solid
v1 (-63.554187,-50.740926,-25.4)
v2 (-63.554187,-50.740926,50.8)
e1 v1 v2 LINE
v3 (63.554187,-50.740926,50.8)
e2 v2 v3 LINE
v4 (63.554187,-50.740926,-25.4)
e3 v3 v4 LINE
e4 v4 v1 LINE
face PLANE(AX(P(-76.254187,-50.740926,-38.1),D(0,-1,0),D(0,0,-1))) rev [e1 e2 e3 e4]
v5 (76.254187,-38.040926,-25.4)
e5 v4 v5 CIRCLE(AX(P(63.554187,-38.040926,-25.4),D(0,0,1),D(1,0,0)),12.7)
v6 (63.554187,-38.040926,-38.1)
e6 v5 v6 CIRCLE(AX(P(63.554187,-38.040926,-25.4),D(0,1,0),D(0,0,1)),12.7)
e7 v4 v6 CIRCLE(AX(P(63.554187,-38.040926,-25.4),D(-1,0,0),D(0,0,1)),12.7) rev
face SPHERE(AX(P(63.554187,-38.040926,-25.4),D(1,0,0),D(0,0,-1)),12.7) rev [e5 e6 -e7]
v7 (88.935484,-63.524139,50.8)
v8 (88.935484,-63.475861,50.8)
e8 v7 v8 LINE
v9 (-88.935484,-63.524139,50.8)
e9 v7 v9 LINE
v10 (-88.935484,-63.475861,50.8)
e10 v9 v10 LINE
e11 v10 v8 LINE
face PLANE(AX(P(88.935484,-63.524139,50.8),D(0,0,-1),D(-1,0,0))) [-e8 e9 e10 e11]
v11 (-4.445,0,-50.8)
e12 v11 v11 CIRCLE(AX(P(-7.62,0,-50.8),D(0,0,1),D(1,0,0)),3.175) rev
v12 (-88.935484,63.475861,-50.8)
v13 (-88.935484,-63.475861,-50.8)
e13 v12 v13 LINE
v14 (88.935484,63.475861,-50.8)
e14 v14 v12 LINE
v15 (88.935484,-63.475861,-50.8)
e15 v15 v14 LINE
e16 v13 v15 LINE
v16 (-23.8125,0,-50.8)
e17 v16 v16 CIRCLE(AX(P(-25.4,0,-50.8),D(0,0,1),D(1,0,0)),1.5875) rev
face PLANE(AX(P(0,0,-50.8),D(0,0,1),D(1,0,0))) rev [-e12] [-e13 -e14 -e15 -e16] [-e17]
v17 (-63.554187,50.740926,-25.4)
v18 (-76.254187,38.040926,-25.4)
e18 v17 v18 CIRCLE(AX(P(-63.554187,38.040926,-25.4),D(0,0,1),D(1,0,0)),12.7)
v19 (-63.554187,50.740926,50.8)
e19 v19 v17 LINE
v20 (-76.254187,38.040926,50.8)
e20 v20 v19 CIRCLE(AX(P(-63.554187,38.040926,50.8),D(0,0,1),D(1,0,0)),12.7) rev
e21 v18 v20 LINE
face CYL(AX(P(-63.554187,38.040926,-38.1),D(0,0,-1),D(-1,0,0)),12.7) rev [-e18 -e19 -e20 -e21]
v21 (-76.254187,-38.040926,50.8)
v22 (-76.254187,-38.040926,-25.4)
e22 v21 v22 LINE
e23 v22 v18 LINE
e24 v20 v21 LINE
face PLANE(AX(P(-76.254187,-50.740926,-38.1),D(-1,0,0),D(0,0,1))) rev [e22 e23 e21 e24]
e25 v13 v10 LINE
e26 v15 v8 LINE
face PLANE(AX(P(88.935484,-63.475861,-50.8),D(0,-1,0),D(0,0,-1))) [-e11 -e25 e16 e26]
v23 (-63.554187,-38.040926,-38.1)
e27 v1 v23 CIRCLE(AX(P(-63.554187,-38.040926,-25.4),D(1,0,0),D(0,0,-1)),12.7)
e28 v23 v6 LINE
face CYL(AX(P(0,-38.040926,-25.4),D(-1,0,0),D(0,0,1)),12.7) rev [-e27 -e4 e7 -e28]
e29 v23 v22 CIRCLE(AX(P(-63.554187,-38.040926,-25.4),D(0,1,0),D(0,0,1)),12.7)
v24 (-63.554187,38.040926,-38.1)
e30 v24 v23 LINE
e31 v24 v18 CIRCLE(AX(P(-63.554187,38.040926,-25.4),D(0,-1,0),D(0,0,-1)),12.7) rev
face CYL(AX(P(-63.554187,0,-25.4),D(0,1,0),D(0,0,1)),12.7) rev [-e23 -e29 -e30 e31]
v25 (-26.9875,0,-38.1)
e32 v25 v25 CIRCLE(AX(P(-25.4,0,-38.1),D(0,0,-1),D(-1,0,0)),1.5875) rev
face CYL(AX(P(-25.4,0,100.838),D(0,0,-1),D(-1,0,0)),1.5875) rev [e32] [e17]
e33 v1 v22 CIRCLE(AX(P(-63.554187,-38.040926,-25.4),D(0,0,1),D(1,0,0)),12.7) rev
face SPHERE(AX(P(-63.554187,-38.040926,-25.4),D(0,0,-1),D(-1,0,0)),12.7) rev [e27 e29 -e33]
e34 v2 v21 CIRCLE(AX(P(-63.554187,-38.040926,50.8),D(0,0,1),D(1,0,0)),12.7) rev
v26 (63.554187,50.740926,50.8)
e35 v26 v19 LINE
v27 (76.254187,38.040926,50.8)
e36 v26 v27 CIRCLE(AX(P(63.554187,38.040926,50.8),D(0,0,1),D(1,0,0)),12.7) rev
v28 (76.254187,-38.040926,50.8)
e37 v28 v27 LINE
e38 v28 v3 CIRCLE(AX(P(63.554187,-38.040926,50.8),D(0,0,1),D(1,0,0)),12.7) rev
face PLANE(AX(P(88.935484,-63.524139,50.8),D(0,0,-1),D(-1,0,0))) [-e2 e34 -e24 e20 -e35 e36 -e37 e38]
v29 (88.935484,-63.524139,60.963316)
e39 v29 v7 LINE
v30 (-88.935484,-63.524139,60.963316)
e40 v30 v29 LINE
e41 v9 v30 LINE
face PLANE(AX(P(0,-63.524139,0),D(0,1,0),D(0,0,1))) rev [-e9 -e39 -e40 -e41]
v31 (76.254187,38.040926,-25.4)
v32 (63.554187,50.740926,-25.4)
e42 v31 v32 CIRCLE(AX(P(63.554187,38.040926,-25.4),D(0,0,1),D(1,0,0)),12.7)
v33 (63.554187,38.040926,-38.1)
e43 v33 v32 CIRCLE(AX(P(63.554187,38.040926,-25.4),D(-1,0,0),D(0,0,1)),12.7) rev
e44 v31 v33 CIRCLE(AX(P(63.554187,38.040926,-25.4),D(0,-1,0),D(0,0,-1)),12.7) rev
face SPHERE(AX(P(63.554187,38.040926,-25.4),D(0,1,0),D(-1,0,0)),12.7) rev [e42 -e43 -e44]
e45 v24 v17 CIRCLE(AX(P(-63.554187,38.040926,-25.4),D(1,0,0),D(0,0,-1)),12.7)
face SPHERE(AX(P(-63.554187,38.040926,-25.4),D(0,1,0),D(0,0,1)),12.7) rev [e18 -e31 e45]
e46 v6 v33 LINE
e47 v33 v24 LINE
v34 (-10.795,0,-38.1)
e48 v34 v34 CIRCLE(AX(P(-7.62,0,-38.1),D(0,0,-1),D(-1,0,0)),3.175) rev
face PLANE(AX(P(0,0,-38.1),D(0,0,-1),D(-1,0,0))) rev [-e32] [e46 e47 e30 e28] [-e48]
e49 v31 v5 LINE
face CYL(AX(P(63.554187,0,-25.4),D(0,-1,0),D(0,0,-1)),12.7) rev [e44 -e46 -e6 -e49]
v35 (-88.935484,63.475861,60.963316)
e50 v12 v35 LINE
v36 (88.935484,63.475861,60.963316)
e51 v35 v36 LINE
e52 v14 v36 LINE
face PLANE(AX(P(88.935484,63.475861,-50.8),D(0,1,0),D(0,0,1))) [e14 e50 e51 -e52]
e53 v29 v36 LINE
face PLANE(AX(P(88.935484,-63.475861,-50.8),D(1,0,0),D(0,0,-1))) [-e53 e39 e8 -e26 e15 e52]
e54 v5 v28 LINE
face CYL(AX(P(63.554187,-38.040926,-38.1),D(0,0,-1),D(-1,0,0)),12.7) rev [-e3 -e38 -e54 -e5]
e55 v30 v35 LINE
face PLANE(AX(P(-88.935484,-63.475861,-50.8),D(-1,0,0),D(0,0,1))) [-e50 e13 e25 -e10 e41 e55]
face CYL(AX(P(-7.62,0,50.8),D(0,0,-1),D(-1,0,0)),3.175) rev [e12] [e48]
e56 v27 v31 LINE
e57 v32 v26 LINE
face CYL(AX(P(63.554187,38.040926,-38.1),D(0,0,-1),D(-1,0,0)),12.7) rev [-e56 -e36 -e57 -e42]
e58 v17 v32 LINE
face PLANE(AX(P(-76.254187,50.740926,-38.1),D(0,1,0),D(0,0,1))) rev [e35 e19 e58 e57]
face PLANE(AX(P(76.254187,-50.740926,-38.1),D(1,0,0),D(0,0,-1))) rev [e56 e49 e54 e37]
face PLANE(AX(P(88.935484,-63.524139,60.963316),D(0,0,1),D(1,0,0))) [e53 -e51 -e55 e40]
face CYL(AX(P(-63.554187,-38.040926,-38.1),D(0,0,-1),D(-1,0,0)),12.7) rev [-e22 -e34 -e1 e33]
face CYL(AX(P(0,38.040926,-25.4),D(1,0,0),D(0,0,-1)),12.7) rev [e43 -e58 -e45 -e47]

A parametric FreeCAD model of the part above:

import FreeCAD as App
import Part
import Sketcher

V = App.Vector
Q = App.Units.Quantity


def edges_at(feature, points):
    """Names of the edges that pass closest to the given points."""
    edges = feature.Shape.Edges
    near = lambda p: min(range(len(edges)), key=lambda i: edges[i].distToShape(Part.Vertex(*p))[0])
    return sorted({f"Edge{near(p) + 1}" for p in points})

doc = App.newDocument("Part")
body = doc.addObject("PartDesign::Body", "Body")

# Sketch on XY plane
sketch1 = doc.addObject("Sketcher::SketchObject", "Sketch")
body.addObject(sketch1)
sketch1.AttachmentSupport = (doc.XY_Plane, [""])
sketch1.MapMode = "FlatFace"
sketch1.addGeometry(Part.LineSegment(V(-88.935484, 63.475861, 0), V(-88.935484, -63.475861, 0)), False)
sketch1.addGeometry(Part.LineSegment(V(-88.935484, -63.475861, 0), V(88.935484, -63.475861, 0)), False)
sketch1.addGeometry(Part.LineSegment(V(88.935484, -63.475861, 0), V(88.935484, 63.475861, 0)), False)
sketch1.addGeometry(Part.LineSegment(V(88.935484, 63.475861, 0), V(-88.935484, 63.475861, 0)), False)
sketch1.addConstraint(Sketcher.Constraint("Coincident", 0, 2, 1, 1))
sketch1.addConstraint(Sketcher.Constraint("Coincident", 1, 2, 2, 1))
sketch1.addConstraint(Sketcher.Constraint("Coincident", 2, 2, 3, 1))
sketch1.addConstraint(Sketcher.Constraint("Coincident", 3, 2, 0, 1))
sketch1.addConstraint(Sketcher.Constraint("Vertical", 0))
sketch1.addConstraint(Sketcher.Constraint("Horizontal", 1))
sketch1.addConstraint(Sketcher.Constraint("Vertical", 2))
sketch1.addConstraint(Sketcher.Constraint("Horizontal", 3))
sketch1.addConstraint(Sketcher.Constraint("Symmetric", 0, 2, 2, 2, -1, 1))
sketch1.addConstraint(Sketcher.Constraint("DistanceX", 1, 1, 1, 2, Q("177.870968 mm")))
sketch1.addConstraint(Sketcher.Constraint("DistanceY", 0, 2, 0, 1, Q("126.951723 mm")))
pad1 = doc.addObject("PartDesign::Pad", "Pad")
body.addObject(pad1)
pad1.Profile = sketch1
pad1.Type = "TwoLengths"
pad1.Length = Q("2 in")
pad1.Length2 = Q("2 in")

# Sketch on XY plane
sketch2 = doc.addObject("Sketcher::SketchObject", "Sketch001")
body.addObject(sketch2)
sketch2.AttachmentSupport = (doc.XY_Plane, [""])
sketch2.MapMode = "FlatFace"
sketch2.AttachmentOffset = App.Placement(V(0, 0, 2 * 25.4), App.Rotation())
sketch2.addGeometry(Part.LineSegment(V(-76.254187, 50.740926, 0), V(-76.254187, -50.740926, 0)), False)
sketch2.addGeometry(Part.LineSegment(V(-76.254187, -50.740926, 0), V(76.254187, -50.740926, 0)), False)
sketch2.addGeometry(Part.LineSegment(V(76.254187, -50.740926, 0), V(76.254187, 50.740926, 0)), False)
sketch2.addGeometry(Part.LineSegment(V(76.254187, 50.740926, 0), V(-76.254187, 50.740926, 0)), False)
sketch2.addConstraint(Sketcher.Constraint("Coincident", 0, 2, 1, 1))
sketch2.addConstraint(Sketcher.Constraint("Coincident", 1, 2, 2, 1))
sketch2.addConstraint(Sketcher.Constraint("Coincident", 2, 2, 3, 1))
sketch2.addConstraint(Sketcher.Constraint("Coincident", 3, 2, 0, 1))
sketch2.addConstraint(Sketcher.Constraint("Vertical", 0))
sketch2.addConstraint(Sketcher.Constraint("Horizontal", 1))
sketch2.addConstraint(Sketcher.Constraint("Vertical", 2))
sketch2.addConstraint(Sketcher.Constraint("Horizontal", 3))
sketch2.addConstraint(Sketcher.Constraint("Symmetric", 0, 2, 2, 2, -1, 1))
sketch2.addConstraint(Sketcher.Constraint("DistanceX", 1, 1, 1, 2, Q("152.508374 mm")))
sketch2.addConstraint(Sketcher.Constraint("DistanceY", 0, 2, 0, 1, Q("101.481852 mm")))
pocket1 = doc.addObject("PartDesign::Pocket", "Pocket")
body.addObject(pocket1)
pocket1.Profile = sketch2
pocket1.Length = Q("3.5 in")
doc.recompute()

fillet = doc.addObject("PartDesign::Fillet", "Fillet")
body.addObject(fillet)
fillet.Base = (pocket1, edges_at(pocket1, [
    (76.254, 0, -38.1),
    (76.254, 50.741, 6.35),
    (0, -50.741, -38.1),
    (76.254, -50.741, 6.35),
    (-76.254, 0, -38.1),
    (-76.254, -50.741, 6.35),
    (0, 50.741, -38.1),
    (-76.254, 50.741, 6.35),
]))
fillet.Radius = Q("0.5 in")

# Sketch on XY plane
sketch3 = doc.addObject("Sketcher::SketchObject", "Sketch002")
body.addObject(sketch3)
sketch3.AttachmentSupport = (doc.XY_Plane, [""])
sketch3.MapMode = "FlatFace"
sketch3.AttachmentOffset = App.Placement(V(0, 0, -1.5 * 25.4), App.Rotation())
sketch3.addGeometry(Part.Circle(V(-25.4, 0, 0), V(0, 0, 1), 1.5875), False)
sketch3.addConstraint(Sketcher.Constraint("PointOnObject", 0, 3, -1))
sketch3.addConstraint(Sketcher.Constraint("Diameter", 0, Q("0.125 in")))
sketch3.addConstraint(Sketcher.Constraint("DistanceX", 0, 3, -1, 1, Q("1 in")))
pocket2 = doc.addObject("PartDesign::Pocket", "Pocket001")
body.addObject(pocket2)
pocket2.Profile = sketch3
pocket2.Type = "ThroughAll"
pocket2.Midplane = True

# Sketch on XY plane
sketch4 = doc.addObject("Sketcher::SketchObject", "Sketch003")
body.addObject(sketch4)
sketch4.AttachmentSupport = (doc.XY_Plane, [""])
sketch4.MapMode = "FlatFace"
sketch4.AttachmentOffset = App.Placement(V(0, 0, -1.5 * 25.4), App.Rotation())
sketch4.addGeometry(Part.Circle(V(-7.62, 0, 0), V(0, 0, 1), 3.175), False)
sketch4.addConstraint(Sketcher.Constraint("PointOnObject", 0, 3, -1))
sketch4.addConstraint(Sketcher.Constraint("Diameter", 0, Q("0.25 in")))
sketch4.addConstraint(Sketcher.Constraint("DistanceX", 0, 3, -1, 1, Q("0.3 in")))
pocket3 = doc.addObject("PartDesign::Pocket", "Pocket002")
body.addObject(pocket3)
pocket3.Profile = sketch4
pocket3.Type = "ThroughAll"
pocket3.Midplane = True

# Sketch on XZ plane
sketch5 = doc.addObject("Sketcher::SketchObject", "Sketch004")
body.addObject(sketch5)
sketch5.AttachmentSupport = (doc.XZ_Plane, [""])
sketch5.MapMode = "FlatFace"
sketch5.AttachmentOffset = App.Placement(V(0, 0, -63.475861), App.Rotation())
sketch5.addGeometry(Part.LineSegment(V(-88.935484, 50.8, 0), V(-88.935484, 60.963316, 0)), False)
sketch5.addGeometry(Part.LineSegment(V(-88.935484, 60.963316, 0), V(88.935484, 60.963316, 0)), False)
sketch5.addGeometry(Part.LineSegment(V(88.935484, 60.963316, 0), V(88.935484, 50.8, 0)), False)
sketch5.addGeometry(Part.LineSegment(V(88.935484, 50.8, 0), V(-88.935484, 50.8, 0)), False)
sketch5.addConstraint(Sketcher.Constraint("Coincident", 0, 2, 1, 1))
sketch5.addConstraint(Sketcher.Constraint("Coincident", 1, 2, 2, 1))
sketch5.addConstraint(Sketcher.Constraint("Coincident", 2, 2, 3, 1))
sketch5.addConstraint(Sketcher.Constraint("Coincident", 3, 2, 0, 1))
sketch5.addConstraint(Sketcher.Constraint("Vertical", 0))
sketch5.addConstraint(Sketcher.Constraint("Horizontal", 1))
sketch5.addConstraint(Sketcher.Constraint("Vertical", 2))
sketch5.addConstraint(Sketcher.Constraint("Horizontal", 3))
sketch5.addConstraint(Sketcher.Constraint("DistanceY", -1, 1, 2, 2, Q("2 in")))
sketch5.addConstraint(Sketcher.Constraint("DistanceX", 1, 1, 1, 2, Q("177.870968 mm")))
sketch5.addConstraint(Sketcher.Constraint("DistanceY", 0, 1, 0, 2, Q("10.163316 mm")))
sketch5.addConstraint(Sketcher.Constraint("DistanceX", 0, 2, -1, 1, Q("88.935484 mm")))
pad2 = doc.addObject("PartDesign::Pad", "Pad001")
body.addObject(pad2)
pad2.Profile = sketch5
pad2.Length = Q("5 in")

doc.recompute()
